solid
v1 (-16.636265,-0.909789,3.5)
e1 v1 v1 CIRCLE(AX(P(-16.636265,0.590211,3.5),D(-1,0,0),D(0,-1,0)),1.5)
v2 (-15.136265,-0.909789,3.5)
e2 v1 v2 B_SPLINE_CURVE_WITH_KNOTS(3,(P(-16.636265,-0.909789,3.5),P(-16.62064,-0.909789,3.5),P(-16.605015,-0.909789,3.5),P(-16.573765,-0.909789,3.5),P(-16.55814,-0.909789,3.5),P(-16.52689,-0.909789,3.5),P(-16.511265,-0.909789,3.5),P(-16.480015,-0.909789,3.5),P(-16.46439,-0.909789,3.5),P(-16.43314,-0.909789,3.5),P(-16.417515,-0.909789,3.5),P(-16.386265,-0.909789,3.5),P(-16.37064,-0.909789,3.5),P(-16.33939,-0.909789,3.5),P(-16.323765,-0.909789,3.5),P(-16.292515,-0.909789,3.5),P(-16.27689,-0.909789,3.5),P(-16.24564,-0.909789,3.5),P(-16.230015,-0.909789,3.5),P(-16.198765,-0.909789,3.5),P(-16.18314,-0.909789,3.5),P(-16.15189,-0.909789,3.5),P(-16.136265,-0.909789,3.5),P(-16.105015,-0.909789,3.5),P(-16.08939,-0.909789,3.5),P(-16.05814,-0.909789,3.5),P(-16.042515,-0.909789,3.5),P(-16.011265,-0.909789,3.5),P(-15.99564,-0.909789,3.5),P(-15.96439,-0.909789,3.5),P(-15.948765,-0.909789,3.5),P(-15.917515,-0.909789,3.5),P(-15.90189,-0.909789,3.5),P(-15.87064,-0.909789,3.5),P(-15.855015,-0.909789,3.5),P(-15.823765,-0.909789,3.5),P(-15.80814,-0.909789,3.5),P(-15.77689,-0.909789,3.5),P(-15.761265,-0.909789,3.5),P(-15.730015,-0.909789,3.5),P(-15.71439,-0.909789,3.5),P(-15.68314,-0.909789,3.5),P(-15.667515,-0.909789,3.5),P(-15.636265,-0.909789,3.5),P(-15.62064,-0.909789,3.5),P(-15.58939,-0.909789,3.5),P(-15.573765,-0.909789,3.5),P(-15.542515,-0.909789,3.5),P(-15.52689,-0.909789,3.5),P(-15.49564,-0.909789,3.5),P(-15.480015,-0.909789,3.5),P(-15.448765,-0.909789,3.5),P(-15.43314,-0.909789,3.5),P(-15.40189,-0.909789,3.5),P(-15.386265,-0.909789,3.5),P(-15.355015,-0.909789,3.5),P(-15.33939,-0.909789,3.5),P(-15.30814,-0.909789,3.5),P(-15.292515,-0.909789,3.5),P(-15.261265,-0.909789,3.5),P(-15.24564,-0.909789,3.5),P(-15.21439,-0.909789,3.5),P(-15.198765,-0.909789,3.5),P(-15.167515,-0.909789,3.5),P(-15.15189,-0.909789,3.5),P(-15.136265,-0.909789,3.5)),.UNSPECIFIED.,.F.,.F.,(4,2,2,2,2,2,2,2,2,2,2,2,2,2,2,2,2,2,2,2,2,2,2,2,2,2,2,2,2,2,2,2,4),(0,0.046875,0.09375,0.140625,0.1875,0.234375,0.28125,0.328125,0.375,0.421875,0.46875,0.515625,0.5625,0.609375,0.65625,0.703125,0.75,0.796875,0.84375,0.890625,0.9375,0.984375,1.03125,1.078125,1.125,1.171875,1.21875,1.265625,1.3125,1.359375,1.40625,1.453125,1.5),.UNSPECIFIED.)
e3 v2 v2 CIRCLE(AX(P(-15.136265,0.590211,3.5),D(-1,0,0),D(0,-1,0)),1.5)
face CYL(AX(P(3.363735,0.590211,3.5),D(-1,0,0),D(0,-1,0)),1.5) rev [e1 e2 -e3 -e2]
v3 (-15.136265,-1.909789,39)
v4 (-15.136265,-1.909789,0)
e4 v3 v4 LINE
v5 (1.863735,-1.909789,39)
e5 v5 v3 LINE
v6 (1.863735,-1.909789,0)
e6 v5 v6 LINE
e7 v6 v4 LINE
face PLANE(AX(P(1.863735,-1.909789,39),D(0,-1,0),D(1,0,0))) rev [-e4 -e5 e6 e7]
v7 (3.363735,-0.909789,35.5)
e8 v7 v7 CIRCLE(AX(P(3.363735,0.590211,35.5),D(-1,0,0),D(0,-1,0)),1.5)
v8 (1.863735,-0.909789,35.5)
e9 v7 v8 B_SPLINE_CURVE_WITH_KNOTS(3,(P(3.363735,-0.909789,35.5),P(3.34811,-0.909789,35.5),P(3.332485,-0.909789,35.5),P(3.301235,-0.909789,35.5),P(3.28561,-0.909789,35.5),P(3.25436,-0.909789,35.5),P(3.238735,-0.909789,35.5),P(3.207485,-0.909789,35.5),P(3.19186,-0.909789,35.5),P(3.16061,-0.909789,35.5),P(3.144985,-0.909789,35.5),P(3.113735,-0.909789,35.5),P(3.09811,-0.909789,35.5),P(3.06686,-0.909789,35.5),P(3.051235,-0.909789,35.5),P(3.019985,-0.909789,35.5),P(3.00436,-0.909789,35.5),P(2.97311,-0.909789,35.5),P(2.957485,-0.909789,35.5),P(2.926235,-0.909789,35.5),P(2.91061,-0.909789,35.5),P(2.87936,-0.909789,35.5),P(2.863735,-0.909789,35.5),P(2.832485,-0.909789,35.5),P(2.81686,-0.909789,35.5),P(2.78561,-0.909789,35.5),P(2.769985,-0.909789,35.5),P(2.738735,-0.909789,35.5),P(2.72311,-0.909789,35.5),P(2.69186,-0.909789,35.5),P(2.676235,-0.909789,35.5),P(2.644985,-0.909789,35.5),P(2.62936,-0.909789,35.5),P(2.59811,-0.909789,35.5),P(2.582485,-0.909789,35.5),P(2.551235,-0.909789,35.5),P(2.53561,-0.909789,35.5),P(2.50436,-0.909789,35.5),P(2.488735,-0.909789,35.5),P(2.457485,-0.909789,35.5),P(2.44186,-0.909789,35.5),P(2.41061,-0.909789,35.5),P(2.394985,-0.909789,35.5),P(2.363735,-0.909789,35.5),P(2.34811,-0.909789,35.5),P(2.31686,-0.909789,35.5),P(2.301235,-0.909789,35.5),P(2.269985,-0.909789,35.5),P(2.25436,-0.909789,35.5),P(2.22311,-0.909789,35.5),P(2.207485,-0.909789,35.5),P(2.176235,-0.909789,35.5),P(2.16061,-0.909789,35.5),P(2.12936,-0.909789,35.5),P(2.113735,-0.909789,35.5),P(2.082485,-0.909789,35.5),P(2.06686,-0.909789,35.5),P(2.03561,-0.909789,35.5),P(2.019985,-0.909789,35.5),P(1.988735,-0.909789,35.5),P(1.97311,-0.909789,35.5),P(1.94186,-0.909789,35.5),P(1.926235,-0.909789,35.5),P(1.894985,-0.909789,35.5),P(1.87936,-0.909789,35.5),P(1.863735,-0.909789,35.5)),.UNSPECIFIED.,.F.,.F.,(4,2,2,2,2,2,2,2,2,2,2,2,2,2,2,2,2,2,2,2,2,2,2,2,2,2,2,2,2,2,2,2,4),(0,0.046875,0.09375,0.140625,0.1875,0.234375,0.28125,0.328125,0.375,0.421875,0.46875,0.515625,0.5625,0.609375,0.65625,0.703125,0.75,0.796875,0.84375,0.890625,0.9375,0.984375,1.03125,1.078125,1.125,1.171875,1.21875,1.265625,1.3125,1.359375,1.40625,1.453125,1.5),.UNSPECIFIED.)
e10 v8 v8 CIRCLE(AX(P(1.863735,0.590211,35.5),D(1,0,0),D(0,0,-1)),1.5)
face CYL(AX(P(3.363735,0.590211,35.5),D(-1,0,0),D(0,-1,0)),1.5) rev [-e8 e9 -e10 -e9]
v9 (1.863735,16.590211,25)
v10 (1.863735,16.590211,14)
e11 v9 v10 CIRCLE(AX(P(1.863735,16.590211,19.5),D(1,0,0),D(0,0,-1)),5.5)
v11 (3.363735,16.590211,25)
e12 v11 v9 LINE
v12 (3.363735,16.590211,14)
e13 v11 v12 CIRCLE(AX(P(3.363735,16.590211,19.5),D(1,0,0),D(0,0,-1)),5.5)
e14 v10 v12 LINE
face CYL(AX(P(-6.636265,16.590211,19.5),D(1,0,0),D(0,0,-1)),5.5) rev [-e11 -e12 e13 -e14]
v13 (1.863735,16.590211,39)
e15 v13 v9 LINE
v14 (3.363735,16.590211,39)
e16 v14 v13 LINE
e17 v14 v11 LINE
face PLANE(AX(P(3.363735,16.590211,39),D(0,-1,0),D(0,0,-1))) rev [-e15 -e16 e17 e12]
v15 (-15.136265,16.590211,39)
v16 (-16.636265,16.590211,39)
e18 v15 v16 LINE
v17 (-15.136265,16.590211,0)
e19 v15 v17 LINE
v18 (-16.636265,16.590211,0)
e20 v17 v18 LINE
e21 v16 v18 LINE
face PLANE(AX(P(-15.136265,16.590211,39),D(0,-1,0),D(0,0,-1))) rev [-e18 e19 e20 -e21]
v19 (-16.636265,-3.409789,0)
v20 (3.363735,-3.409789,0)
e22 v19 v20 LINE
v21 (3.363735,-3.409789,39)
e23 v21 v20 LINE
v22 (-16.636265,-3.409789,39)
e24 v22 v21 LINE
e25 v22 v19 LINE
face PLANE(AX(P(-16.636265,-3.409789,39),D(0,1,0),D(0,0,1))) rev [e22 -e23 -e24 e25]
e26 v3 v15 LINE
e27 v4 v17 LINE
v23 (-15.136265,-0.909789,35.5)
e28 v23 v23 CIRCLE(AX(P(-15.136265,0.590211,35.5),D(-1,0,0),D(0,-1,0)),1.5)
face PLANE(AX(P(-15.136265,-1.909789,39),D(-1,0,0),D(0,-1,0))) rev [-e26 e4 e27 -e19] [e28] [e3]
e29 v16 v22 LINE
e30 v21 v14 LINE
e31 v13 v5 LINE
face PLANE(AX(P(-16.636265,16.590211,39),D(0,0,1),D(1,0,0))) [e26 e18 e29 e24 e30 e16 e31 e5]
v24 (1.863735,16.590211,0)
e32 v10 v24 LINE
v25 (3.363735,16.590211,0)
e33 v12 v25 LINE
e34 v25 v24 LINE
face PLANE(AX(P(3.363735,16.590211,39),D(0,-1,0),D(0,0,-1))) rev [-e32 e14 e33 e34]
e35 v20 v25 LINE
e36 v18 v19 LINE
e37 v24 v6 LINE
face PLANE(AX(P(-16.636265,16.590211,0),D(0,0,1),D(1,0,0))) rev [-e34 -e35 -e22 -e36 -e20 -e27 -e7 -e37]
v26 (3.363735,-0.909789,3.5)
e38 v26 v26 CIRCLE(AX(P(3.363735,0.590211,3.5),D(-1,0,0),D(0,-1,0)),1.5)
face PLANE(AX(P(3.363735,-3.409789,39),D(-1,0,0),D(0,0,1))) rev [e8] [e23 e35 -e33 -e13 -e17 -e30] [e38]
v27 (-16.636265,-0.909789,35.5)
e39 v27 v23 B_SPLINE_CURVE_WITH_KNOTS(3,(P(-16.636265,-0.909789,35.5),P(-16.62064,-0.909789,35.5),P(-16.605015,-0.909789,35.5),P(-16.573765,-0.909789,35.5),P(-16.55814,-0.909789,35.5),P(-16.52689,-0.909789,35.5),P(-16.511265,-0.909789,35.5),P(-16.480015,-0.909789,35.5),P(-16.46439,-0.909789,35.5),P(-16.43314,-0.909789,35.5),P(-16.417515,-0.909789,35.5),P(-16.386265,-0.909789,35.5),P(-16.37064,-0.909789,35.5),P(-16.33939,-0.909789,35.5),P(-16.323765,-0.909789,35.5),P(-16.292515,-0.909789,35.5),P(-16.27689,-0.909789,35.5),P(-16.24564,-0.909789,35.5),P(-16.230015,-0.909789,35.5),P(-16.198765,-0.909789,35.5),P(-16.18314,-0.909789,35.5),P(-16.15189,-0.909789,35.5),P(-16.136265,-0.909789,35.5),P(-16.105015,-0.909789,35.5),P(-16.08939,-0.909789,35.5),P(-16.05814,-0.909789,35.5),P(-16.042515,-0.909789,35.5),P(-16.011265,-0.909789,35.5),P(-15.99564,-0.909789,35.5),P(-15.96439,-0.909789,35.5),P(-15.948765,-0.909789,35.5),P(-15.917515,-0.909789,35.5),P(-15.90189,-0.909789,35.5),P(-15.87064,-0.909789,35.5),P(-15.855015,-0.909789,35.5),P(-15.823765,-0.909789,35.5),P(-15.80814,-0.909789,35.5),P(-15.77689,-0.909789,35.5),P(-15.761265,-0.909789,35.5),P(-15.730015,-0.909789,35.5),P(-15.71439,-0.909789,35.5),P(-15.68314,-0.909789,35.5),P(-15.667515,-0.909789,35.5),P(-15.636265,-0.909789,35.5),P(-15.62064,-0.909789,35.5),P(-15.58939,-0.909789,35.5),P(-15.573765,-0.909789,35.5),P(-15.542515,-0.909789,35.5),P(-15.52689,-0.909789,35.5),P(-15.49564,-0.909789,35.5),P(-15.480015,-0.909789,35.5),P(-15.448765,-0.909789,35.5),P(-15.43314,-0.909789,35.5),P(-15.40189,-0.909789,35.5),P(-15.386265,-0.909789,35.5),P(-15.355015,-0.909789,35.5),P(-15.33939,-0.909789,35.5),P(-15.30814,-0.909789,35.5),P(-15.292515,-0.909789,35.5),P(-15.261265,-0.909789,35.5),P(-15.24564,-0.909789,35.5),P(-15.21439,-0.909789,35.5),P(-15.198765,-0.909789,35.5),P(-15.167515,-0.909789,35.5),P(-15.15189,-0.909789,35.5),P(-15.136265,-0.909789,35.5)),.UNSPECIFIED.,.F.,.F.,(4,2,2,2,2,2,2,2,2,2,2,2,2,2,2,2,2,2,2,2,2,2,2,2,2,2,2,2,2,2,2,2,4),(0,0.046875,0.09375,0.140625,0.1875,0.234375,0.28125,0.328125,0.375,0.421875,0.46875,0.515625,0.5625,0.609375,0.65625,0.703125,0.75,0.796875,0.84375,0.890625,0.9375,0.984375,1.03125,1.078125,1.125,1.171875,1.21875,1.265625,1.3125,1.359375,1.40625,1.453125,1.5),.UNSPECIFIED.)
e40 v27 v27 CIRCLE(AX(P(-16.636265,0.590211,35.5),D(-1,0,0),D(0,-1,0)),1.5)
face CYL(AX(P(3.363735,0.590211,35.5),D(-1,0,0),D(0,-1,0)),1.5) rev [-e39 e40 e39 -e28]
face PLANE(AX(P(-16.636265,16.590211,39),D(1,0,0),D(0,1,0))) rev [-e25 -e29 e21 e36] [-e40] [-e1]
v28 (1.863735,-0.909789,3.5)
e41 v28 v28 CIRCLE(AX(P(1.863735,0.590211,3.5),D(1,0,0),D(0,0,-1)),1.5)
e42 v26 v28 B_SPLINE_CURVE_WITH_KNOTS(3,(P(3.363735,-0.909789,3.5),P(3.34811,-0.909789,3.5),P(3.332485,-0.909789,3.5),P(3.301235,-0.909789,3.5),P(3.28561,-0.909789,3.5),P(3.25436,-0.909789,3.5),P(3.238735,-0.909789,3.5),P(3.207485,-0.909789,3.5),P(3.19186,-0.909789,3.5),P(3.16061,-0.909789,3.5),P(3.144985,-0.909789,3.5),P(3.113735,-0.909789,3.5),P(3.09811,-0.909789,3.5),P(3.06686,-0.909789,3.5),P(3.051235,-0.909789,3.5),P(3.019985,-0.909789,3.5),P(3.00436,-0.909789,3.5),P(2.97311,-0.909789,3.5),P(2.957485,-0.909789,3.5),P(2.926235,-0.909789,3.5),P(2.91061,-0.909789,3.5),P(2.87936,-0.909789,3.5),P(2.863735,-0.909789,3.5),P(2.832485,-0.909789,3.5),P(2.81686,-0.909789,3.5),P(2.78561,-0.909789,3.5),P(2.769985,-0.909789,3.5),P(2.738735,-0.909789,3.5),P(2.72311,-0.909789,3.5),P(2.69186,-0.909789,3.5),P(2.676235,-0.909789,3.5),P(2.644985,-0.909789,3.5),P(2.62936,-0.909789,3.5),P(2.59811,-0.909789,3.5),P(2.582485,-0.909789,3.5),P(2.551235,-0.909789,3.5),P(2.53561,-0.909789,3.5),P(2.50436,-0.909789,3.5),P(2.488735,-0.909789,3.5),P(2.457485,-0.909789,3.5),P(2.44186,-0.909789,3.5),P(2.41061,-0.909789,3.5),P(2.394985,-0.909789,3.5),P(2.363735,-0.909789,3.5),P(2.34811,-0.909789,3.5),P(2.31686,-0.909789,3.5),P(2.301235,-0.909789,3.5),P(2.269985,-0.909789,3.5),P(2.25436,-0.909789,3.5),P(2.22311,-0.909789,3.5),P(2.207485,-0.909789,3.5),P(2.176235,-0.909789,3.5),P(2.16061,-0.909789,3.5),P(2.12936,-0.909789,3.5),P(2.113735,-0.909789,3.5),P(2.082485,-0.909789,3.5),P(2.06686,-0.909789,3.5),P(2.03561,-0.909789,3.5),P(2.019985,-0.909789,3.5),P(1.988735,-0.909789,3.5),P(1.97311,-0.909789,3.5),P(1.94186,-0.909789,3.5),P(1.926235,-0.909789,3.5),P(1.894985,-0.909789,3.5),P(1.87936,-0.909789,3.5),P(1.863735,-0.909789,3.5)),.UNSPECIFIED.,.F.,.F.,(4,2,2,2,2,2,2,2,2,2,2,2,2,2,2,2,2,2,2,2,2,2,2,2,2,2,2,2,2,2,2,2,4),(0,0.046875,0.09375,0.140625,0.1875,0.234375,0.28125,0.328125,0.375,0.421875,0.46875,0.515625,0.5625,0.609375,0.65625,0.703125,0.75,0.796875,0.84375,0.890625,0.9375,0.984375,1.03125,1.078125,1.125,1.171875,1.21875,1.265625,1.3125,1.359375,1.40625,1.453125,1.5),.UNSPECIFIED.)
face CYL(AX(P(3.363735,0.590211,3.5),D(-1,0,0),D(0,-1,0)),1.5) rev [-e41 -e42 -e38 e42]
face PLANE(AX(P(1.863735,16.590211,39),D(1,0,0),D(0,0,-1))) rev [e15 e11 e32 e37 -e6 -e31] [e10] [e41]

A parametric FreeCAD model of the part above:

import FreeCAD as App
import Part
import Sketcher

doc = App.newDocument("Part")
params = doc.addObject("Spreadsheet::Sheet", "Params")
for row, (alias, value) in enumerate([
    ("sketch1_width", "20 mm"),
    ("sketch1_width2", "17 mm"),
    ("sketch1_height", "18.5 mm"),
    ("pad1_length", "39 mm"),
    ("sketch2_diameter", "11 mm"),
    ("pocket1_length", "10 mm"),
    ("sketch3_diameter", "3 mm"),
], start=1):
    params.set(f"A{row}", alias)
    params.set(f"B{row}", "=" + value)
    params.setAlias(f"B{row}", alias)

body = doc.addObject("PartDesign::Body", "Body")

sketch1 = doc.addObject("Sketcher::SketchObject", "Sketch")
body.addObject(sketch1)
sketch1.AttachmentSupport = (doc.XY_Plane, [""])
sketch1.MapMode = "FlatFace"
sketch1.addGeometry([
    Part.LineSegment(App.Vector(-16.6, 16.6, 0), App.Vector(-16.6, -3.4, 0)),
    Part.LineSegment(App.Vector(-16.6, -3.4, 0), App.Vector(3.4, -3.4, 0)),
    Part.LineSegment(App.Vector(3.4, -3.4, 0), App.Vector(3.4, 16.6, 0)),
    Part.LineSegment(App.Vector(3.4, 16.6, 0), App.Vector(1.9, 16.6, 0)),
    Part.LineSegment(App.Vector(1.9, 16.6, 0), App.Vector(1.9, -1.9, 0)),
    Part.LineSegment(App.Vector(1.9, -1.9, 0), App.Vector(-15.1, -1.9, 0)),
    Part.LineSegment(App.Vector(-15.1, -1.9, 0), App.Vector(-15.1, 16.6, 0)),
    Part.LineSegment(App.Vector(-15.1, 16.6, 0), App.Vector(-16.6, 16.6, 0)),
], False)
sketch1.addConstraint([
    Sketcher.Constraint("Coincident", 0, 2, 1, 1),
    Sketcher.Constraint("Coincident", 1, 2, 2, 1),
    Sketcher.Constraint("Coincident", 2, 2, 3, 1),
    Sketcher.Constraint("Coincident", 3, 2, 4, 1),
    Sketcher.Constraint("Coincident", 4, 2, 5, 1),
    Sketcher.Constraint("Coincident", 5, 2, 6, 1),
    Sketcher.Constraint("Coincident", 6, 2, 7, 1),
    Sketcher.Constraint("Coincident", 7, 2, 0, 1),
    Sketcher.Constraint("Vertical", 0),
    Sketcher.Constraint("Horizontal", 1),
    Sketcher.Constraint("Vertical", 2),
    Sketcher.Constraint("Horizontal", 3),
    Sketcher.Constraint("Vertical", 4),
    Sketcher.Constraint("Horizontal", 5),
    Sketcher.Constraint("Vertical", 6),
    Sketcher.Constraint("Horizontal", 7),
    Sketcher.Constraint("Horizontal", 3, 2, 6, 2),
    Sketcher.Constraint("Equal", 3, 7),
    Sketcher.Constraint("Equal", 1, 0),
    Sketcher.Constraint("DistanceX", 1, 1, 1, 2, 20.0),
    Sketcher.Constraint("DistanceX", 5, 2, 5, 1, 17.0),
    Sketcher.Constraint("DistanceY", 4, 2, 4, 1, 18.5),
    Sketcher.Constraint("DistanceY", 0, 2, -1, 1, 3.409789),
    Sketcher.Constraint("DistanceX", 0, 2, -1, 1, 16.636265),
])
sketch1.setExpression("Constraints[19]", "Params.sketch1_width")
sketch1.setExpression("Constraints[20]", "Params.sketch1_width2")
sketch1.setExpression("Constraints[21]", "Params.sketch1_height")
pad1 = doc.addObject("PartDesign::Pad", "Pad")
body.addObject(pad1)
pad1.Profile = sketch1
pad1.setExpression("Length", "Params.pad1_length")

sketch2 = doc.addObject("Sketcher::SketchObject", "Sketch001")
body.addObject(sketch2)
sketch2.AttachmentSupport = (doc.YZ_Plane, [""])
sketch2.MapMode = "FlatFace"
sketch2.AttachmentOffset = App.Placement(App.Vector(0, 0, 3.363735), App.Rotation())
sketch2.addGeometry(Part.Circle(App.Vector(17, 20, 0), App.Vector(0, 0, 1), 6), False)
sketch2.addConstraint([
    Sketcher.Constraint("Diameter", 0, 11.0),
    Sketcher.Constraint("DistanceY", -1, 1, 0, 3, 19.5),
    Sketcher.Constraint("DistanceX", -1, 1, 0, 3, 16.590211),
])
sketch2.setExpression("Constraints[0]", "Params.sketch2_diameter")
pocket1 = doc.addObject("PartDesign::Pocket", "Pocket")
body.addObject(pocket1)
pocket1.Profile = sketch2
pocket1.setExpression("Length", "Params.pocket1_length")

sketch3 = doc.addObject("Sketcher::SketchObject", "Sketch002")
body.addObject(sketch3)
sketch3.AttachmentSupport = (doc.YZ_Plane, [""])
sketch3.MapMode = "FlatFace"
sketch3.AttachmentOffset = App.Placement(App.Vector(0, 0, -16.636265), App.Rotation())
sketch3.addGeometry([
    Part.Circle(App.Vector(0.6, 3.5, 0), App.Vector(0, 0, 1), 1.5),
    Part.Circle(App.Vector(0.6, 35.5, 0), App.Vector(0, 0, 1), 1.5),
], False)
sketch3.addConstraint([
    Sketcher.Constraint("Equal", 0, 1),
    Sketcher.Constraint("Vertical", 0, 3, 1, 3),
    Sketcher.Constraint("Diameter", 0, 3.0),
    Sketcher.Constraint("DistanceY", 0, 3, 1, 3, 32.0),
    Sketcher.Constraint("DistanceY", -1, 1, 0, 3, 3.5),
    Sketcher.Constraint("DistanceX", -1, 1, 0, 3, 0.590211),
])
sketch3.setExpression("Constraints[2]", "Params.sketch3_diameter")
pocket2 = doc.addObject("PartDesign::Pocket", "Pocket001")
body.addObject(pocket2)
pocket2.Profile = sketch3
pocket2.Type = "ThroughAll"
pocket2.Reversed = True

doc.recompute()
